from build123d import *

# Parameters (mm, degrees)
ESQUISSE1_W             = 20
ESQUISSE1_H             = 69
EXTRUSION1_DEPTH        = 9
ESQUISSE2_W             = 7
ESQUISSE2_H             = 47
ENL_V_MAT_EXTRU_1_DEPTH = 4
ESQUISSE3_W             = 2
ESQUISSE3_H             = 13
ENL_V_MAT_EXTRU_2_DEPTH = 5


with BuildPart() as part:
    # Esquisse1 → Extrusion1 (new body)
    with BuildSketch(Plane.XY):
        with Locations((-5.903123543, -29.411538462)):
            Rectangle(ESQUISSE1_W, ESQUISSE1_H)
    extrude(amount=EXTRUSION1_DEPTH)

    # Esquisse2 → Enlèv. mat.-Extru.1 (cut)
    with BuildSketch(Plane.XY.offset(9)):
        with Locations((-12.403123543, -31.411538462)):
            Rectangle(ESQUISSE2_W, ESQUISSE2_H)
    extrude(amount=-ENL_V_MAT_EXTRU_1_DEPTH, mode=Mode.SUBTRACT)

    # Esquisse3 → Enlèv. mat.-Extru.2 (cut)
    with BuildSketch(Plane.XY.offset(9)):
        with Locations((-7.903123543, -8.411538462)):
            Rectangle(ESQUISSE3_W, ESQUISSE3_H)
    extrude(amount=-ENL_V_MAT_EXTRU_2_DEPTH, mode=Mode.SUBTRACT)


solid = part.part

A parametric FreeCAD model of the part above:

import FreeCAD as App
import Part
import Sketcher

V = App.Vector
Q = App.Units.Quantity


def add_polygon(sketch, points):
    """Adds a closed chain of lines whose ends are joined by coincident constraints."""
    first, n = sketch.GeometryCount, len(points)
    for a, b in zip(points, points[1:] + points[:1]):
        sketch.addGeometry(Part.LineSegment(App.Vector(*a, 0), App.Vector(*b, 0)), False)
    for i in range(n):
        sketch.addConstraint(Sketcher.Constraint("Coincident", first + i, 2, first + (i + 1) % n, 1))

doc = App.newDocument("Part")
params = doc.addObject("Spreadsheet::Sheet", "Params")
for row, (alias, value) in enumerate([
    ("sketch1_width", "20 mm"),
    ("sketch1_height", "69 mm"),
    ("pad1_length", "9 mm"),
    ("sketch2_width", "7 mm"),
    ("sketch2_height", "47 mm"),
    ("pocket1_length", "4 mm"),
    ("sketch3_width", "2 mm"),
    ("sketch3_height", "13 mm"),
    ("pocket2_length", "5 mm"),
], start=1):
    params.set(f"A{row}", alias)
    params.set(f"B{row}", "=" + value)
    params.setAlias(f"B{row}", alias)

body = doc.addObject("PartDesign::Body", "Body")

sketch1 = doc.addObject("Sketcher::SketchObject", "Sketch")
body.addObject(sketch1)
sketch1.AttachmentSupport = (doc.XY_Plane, [""])
sketch1.MapMode = "FlatFace"
add_polygon(sketch1, [(-16, 5), (-16, -64), (4, -64), (4, 5)])
sketch1.addConstraint([
    Sketcher.Constraint("Vertical", 0),
    Sketcher.Constraint("Horizontal", 1),
    Sketcher.Constraint("Vertical", 2),
    Sketcher.Constraint("Horizontal", 3),
    Sketcher.Constraint("DistanceX", 1, 1, 1, 2, Q("20 mm")),
    Sketcher.Constraint("DistanceY", 0, 2, 0, 1, Q("69 mm")),
    Sketcher.Constraint("DistanceY", 0, 2, -1, 1, Q("63.911538 mm")),
    Sketcher.Constraint("DistanceX", 0, 2, -1, 1, Q("15.903124 mm")),
])
sketch1.setExpression("Constraints[8]", "Params.sketch1_width")
sketch1.setExpression("Constraints[9]", "Params.sketch1_height")
pad1 = doc.addObject("PartDesign::Pad", "Pad")
body.addObject(pad1)
pad1.Profile = sketch1
pad1.setExpression("Length", "Params.pad1_length")

sketch2 = doc.addObject("Sketcher::SketchObject", "Sketch001")
body.addObject(sketch2)
sketch2.AttachmentSupport = (doc.XY_Plane, [""])
sketch2.MapMode = "FlatFace"
sketch2.AttachmentOffset = App.Placement(V(0, 0, 9), App.Rotation())
add_polygon(sketch2, [(-16, -8), (-16, -55), (-9, -55), (-9, -8)])
sketch2.addConstraint([
    Sketcher.Constraint("Vertical", 0),
    Sketcher.Constraint("Horizontal", 1),
    Sketcher.Constraint("Vertical", 2),
    Sketcher.Constraint("Horizontal", 3),
    Sketcher.Constraint("DistanceX", 1, 1, 1, 2, Q("7 mm")),
    Sketcher.Constraint("DistanceY", 0, 2, 0, 1, Q("47 mm")),
    Sketcher.Constraint("DistanceY", 0, 2, -1, 1, Q("54.911538 mm")),
    Sketcher.Constraint("DistanceX", 0, 2, -1, 1, Q("15.903124 mm")),
])
sketch2.setExpression("Constraints[8]", "Params.sketch2_width")
sketch2.setExpression("Constraints[9]", "Params.sketch2_height")
pocket1 = doc.addObject("PartDesign::Pocket", "Pocket")
body.addObject(pocket1)
pocket1.Profile = sketch2
pocket1.setExpression("Length", "Params.pocket1_length")

sketch3 = doc.addObject("Sketcher::SketchObject", "Sketch002")
body.addObject(sketch3)
sketch3.AttachmentSupport = (doc.XY_Plane, [""])
sketch3.MapMode = "FlatFace"
sketch3.AttachmentOffset = App.Placement(V(0, 0, 9), App.Rotation())
add_polygon(sketch3, [(-8.9, -1.9), (-8.9, -14.9), (-6.9, -14.9), (-6.9, -1.9)])
sketch3.addConstraint([
    Sketcher.Constraint("Vertical", 0),
    Sketcher.Constraint("Horizontal", 1),
    Sketcher.Constraint("Vertical", 2),
    Sketcher.Constraint("Horizontal", 3),
    Sketcher.Constraint("DistanceX", 1, 1, 1, 2, Q("2 mm")),
    Sketcher.Constraint("DistanceY", 0, 2, 0, 1, Q("13 mm")),
    Sketcher.Constraint("DistanceY", 0, 2, -1, 1, Q("14.911538 mm")),
    Sketcher.Constraint("DistanceX", 0, 2, -1, 1, Q("8.903124 mm")),
])
sketch3.setExpression("Constraints[8]", "Params.sketch3_width")
sketch3.setExpression("Constraints[9]", "Params.sketch3_height")
pocket2 = doc.addObject("PartDesign::Pocket", "Pocket001")
body.addObject(pocket2)
pocket2.Profile = sketch3
pocket2.setExpression("Length", "Params.pocket2_length")

doc.recompute()
